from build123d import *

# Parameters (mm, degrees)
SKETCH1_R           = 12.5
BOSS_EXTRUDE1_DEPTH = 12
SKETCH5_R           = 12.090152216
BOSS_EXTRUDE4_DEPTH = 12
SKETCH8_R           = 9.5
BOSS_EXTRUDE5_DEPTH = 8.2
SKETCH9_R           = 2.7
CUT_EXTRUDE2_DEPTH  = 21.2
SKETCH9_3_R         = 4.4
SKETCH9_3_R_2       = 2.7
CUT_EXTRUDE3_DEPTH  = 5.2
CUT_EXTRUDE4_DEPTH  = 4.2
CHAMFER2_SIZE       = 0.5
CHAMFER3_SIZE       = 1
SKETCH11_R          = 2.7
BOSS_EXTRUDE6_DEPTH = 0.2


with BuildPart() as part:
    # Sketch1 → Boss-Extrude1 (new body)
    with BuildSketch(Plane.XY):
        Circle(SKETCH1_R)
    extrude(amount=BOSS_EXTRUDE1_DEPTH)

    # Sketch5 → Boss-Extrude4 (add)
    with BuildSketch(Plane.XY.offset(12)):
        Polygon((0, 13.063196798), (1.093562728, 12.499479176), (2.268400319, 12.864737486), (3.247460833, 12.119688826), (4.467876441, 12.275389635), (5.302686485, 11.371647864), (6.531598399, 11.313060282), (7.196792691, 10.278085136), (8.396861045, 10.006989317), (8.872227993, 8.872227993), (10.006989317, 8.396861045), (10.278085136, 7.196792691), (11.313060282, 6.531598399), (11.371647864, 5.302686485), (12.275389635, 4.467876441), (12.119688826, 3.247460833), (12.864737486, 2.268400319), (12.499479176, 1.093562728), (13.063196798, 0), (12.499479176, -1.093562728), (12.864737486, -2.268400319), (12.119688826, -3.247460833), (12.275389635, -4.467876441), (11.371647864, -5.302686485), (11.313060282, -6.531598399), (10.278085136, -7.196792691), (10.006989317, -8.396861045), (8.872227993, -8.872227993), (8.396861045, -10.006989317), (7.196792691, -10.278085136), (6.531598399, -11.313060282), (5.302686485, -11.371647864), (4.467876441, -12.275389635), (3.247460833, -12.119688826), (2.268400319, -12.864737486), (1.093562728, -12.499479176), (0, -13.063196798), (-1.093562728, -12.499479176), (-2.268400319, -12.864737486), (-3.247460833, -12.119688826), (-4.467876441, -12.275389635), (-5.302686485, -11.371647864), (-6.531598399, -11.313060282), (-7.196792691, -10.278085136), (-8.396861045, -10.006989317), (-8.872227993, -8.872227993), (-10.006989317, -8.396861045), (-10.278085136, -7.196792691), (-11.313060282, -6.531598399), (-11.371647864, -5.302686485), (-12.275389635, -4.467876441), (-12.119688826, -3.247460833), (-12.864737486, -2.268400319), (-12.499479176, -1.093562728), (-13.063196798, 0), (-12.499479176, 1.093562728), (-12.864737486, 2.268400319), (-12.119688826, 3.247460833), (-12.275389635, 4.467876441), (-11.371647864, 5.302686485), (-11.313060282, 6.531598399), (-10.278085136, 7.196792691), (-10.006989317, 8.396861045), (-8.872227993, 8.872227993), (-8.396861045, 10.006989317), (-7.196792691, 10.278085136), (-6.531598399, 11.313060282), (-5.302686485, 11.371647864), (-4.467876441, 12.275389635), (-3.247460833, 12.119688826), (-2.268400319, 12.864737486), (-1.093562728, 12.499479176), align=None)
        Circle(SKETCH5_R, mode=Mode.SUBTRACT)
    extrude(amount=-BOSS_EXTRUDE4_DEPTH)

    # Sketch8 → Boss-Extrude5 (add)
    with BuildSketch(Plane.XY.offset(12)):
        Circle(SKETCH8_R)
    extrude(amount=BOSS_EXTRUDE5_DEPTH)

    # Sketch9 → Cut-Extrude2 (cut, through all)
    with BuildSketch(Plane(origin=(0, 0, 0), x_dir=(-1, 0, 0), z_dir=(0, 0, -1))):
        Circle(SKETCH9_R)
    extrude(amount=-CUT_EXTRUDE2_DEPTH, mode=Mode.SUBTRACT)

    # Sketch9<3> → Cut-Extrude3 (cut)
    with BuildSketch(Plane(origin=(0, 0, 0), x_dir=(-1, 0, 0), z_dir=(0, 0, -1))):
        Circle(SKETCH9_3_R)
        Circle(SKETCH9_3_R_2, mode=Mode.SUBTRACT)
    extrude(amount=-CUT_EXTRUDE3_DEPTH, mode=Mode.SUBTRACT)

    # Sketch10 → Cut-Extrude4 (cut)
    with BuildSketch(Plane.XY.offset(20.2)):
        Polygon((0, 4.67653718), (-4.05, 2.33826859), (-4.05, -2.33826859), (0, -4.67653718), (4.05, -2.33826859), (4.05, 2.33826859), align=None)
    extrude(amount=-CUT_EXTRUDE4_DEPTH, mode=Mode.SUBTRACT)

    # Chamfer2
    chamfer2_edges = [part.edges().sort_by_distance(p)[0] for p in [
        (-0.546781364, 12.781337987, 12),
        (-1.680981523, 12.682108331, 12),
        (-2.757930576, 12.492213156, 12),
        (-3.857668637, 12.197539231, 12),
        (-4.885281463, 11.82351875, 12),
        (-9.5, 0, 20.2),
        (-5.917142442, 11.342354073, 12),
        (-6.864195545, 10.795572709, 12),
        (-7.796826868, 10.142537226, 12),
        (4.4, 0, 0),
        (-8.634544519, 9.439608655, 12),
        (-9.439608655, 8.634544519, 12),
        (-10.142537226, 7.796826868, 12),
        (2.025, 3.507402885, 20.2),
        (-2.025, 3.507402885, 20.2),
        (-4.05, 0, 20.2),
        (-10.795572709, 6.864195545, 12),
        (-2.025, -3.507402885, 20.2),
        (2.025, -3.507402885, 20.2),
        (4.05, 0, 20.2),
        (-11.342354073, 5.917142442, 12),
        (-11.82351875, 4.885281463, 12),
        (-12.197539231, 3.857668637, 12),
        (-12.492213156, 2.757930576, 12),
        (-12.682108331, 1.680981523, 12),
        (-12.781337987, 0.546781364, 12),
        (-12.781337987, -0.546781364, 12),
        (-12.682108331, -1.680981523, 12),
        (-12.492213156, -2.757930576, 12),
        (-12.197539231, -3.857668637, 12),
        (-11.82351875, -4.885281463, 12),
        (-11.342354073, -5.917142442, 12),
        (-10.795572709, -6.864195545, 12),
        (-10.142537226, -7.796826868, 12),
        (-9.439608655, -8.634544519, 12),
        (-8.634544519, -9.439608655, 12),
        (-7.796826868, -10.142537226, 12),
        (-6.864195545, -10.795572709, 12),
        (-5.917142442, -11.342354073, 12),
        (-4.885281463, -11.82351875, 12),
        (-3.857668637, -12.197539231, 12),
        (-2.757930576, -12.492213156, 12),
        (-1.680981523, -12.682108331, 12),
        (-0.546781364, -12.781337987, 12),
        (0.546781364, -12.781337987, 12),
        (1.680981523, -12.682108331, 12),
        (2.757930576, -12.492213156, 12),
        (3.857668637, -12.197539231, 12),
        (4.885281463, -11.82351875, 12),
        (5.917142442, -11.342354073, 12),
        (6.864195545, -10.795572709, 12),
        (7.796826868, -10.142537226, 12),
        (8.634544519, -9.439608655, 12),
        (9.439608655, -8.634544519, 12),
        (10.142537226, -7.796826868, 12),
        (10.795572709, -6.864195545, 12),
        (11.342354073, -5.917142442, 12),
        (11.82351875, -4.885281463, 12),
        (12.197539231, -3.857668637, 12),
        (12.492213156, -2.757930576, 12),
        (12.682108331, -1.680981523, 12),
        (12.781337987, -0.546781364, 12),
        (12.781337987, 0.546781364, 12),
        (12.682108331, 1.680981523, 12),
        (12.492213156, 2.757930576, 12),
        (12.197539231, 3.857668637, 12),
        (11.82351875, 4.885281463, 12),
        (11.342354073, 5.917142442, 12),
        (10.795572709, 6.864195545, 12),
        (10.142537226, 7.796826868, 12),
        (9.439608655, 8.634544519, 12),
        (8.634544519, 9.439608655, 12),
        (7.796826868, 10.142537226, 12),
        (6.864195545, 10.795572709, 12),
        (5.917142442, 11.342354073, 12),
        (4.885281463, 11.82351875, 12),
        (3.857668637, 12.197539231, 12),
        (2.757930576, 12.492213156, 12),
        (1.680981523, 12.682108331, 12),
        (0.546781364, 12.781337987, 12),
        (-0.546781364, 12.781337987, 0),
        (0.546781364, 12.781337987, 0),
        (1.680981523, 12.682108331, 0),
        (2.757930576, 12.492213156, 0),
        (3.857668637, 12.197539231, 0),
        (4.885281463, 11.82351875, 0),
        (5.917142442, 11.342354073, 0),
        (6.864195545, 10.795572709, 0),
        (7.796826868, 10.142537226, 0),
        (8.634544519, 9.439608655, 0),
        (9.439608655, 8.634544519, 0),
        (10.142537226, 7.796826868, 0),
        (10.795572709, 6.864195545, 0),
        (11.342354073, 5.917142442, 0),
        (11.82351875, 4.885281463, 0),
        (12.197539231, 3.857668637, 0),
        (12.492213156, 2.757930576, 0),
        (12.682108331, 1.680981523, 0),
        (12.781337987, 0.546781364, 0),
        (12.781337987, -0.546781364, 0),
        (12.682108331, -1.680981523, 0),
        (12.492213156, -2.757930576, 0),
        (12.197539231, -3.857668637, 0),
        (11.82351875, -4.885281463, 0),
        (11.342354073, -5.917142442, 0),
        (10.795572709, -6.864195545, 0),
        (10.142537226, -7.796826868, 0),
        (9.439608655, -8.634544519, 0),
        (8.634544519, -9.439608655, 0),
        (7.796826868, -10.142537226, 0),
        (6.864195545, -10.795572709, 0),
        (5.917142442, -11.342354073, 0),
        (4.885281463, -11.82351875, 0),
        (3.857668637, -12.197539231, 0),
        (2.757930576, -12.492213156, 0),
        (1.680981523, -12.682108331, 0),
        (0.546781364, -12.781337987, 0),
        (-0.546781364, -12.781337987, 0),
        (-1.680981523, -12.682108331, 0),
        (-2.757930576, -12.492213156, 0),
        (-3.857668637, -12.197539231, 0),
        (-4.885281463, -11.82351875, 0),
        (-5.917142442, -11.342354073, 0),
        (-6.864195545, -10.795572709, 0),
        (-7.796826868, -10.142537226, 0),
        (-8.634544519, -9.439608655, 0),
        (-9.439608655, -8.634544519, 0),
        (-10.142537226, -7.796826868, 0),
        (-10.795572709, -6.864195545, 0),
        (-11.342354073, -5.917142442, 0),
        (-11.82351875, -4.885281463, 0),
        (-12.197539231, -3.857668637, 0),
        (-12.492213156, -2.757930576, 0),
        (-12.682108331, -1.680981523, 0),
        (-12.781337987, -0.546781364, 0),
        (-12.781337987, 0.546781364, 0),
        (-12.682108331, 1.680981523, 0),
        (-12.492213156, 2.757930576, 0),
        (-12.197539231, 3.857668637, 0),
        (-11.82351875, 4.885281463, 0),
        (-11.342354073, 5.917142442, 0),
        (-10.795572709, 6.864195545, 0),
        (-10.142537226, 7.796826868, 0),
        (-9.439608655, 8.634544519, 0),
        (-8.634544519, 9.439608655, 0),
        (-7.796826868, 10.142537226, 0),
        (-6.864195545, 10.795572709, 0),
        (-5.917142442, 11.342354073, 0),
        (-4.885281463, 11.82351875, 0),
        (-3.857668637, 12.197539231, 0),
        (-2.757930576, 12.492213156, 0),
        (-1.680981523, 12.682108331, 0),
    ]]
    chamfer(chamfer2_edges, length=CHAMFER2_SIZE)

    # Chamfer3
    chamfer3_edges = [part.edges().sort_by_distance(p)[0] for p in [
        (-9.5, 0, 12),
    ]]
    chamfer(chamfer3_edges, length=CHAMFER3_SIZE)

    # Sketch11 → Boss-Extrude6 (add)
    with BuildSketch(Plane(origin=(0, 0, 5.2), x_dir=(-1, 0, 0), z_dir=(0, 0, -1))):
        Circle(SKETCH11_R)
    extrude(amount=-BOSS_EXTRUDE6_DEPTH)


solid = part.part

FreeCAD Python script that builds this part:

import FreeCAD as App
import Part
import Sketcher
from FreeCAD import Vector
Q = App.Units.Quantity


def edges_at(feature, points):
    """Names of the edges that pass closest to the given points."""
    edges = feature.Shape.Edges
    near = lambda p: min(range(len(edges)), key=lambda i: edges[i].distToShape(Part.Vertex(*p))[0])
    return sorted({f"Edge{near(p) + 1}" for p in points})


def add_polygon(sketch, points):
    """Adds a closed chain of lines whose ends are joined by coincident constraints."""
    first, n = sketch.GeometryCount, len(points)
    for a, b in zip(points, points[1:] + points[:1]):
        sketch.addGeometry(Part.LineSegment(App.Vector(*a, 0), App.Vector(*b, 0)), False)
    for i in range(n):
        sketch.addConstraint(Sketcher.Constraint("Coincident", first + i, 2, first + (i + 1) % n, 1))

doc = App.newDocument("Part")
body = doc.addObject("PartDesign::Body", "Body")

# Sketch on XY plane
sketch1 = body.newObject("Sketcher::SketchObject", "Sketch")
sketch1.AttachmentSupport = (doc.getObject("XY_Plane"), [""])
sketch1.MapMode = "FlatFace"
sketch1.addGeometry(Part.Circle(Vector(0, 0, 0), Vector(0, 0, 1), 12), False)
sketch1.addConstraint([
    Sketcher.Constraint("Coincident", 0, 3, -1, 1),
    Sketcher.Constraint("Diameter", 0, 25.0),
])
pad1 = body.newObject("PartDesign::Pad", "Pad")
pad1.Profile = sketch1
pad1.Length = 12

# Sketch on XY plane
sketch2 = body.newObject("Sketcher::SketchObject", "Sketch001")
sketch2.AttachmentSupport = (doc.getObject("XY_Plane"), [""])
sketch2.MapMode = "FlatFace"
sketch2.AttachmentOffset = App.Placement(Vector(0, 0, 12), App.Rotation())
add_polygon(sketch2, [(1.1, 12.5), (0, 13.1), (-1.1, 12.5), (-2.3, 12.9), (-3.2, 12.1), (-4.5, 12.3), (-5.3, 11.4), (-6.5, 11.3), (-7.2, 10.3), (-8.4, 10), (-8.9, 8.9), (-10, 8.4), (-10.3, 7.2), (-11.3, 6.5), (-11.4, 5.3), (-12.3, 4.5), (-12.1, 3.2), (-12.9, 2.3), (-12.5, 1.1), (-13.1, 0), (-12.5, -1.1), (-12.9, -2.3), (-12.1, -3.2), (-12.3, -4.5), (-11.4, -5.3), (-11.3, -6.5), (-10.3, -7.2), (-10, -8.4), (-8.9, -8.9), (-8.4, -10), (-7.2, -10.3), (-6.5, -11.3), (-5.3, -11.4), (-4.5, -12.3), (-3.2, -12.1), (-2.3, -12.9), (-1.1, -12.5), (0, -13.1), (1.1, -12.5), (2.3, -12.9), (3.2, -12.1), (4.5, -12.3), (5.3, -11.4), (6.5, -11.3), (7.2, -10.3), (8.4, -10), (8.9, -8.9), (10, -8.4), (10.3, -7.2), (11.3, -6.5), (11.4, -5.3), (12.3, -4.5), (12.1, -3.2), (12.9, -2.3), (12.5, -1.1), (13.1, 0), (12.5, 1.1), (12.9, 2.3), (12.1, 3.2), (12.3, 4.5), (11.4, 5.3), (11.3, 6.5), (10.3, 7.2), (10, 8.4), (8.9, 8.9), (8.4, 10), (7.2, 10.3), (6.5, 11.3), (5.3, 11.4), (4.5, 12.3), (3.2, 12.1), (2.3, 12.9)])  # lines 0-71
sketch2.addGeometry(Part.Circle(Vector(0, 0, 0), Vector(0, 0, 1), 12.1), False)  # 72
sketch2.addConstraint([
    Sketcher.Constraint("Coincident", 72, 3, -1, 1),
    Sketcher.Constraint("Symmetric", 0, 2, 36, 2, -1, 1),
    Sketcher.Constraint("Symmetric", 1, 2, 37, 2, -1, 1),
    Sketcher.Constraint("Symmetric", 2, 2, 38, 2, -1, 1),
    Sketcher.Constraint("Symmetric", 3, 2, 39, 2, -1, 1),
    Sketcher.Constraint("Symmetric", 4, 2, 40, 2, -1, 1),
    Sketcher.Constraint("Symmetric", 5, 2, 41, 2, -1, 1),
    Sketcher.Constraint("Symmetric", 6, 2, 42, 2, -1, 1),
    Sketcher.Constraint("Symmetric", 7, 2, 43, 2, -1, 1),
    Sketcher.Constraint("Symmetric", 8, 2, 44, 2, -1, 1),
    Sketcher.Constraint("Symmetric", 9, 2, 45, 2, -1, 1),
    Sketcher.Constraint("Symmetric", 10, 2, 46, 2, -1, 1),
    Sketcher.Constraint("Symmetric", 11, 2, 47, 2, -1, 1),
    Sketcher.Constraint("Symmetric", 12, 2, 48, 2, -1, 1),
    Sketcher.Constraint("Symmetric", 13, 2, 49, 2, -1, 1),
    Sketcher.Constraint("Symmetric", 14, 2, 50, 2, -1, 1),
    Sketcher.Constraint("Symmetric", 15, 2, 51, 2, -1, 1),
    Sketcher.Constraint("Symmetric", 16, 2, 52, 2, -1, 1),
    Sketcher.Constraint("Symmetric", 17, 2, 53, 2, -1, 1),
    Sketcher.Constraint("Symmetric", 18, 2, 54, 2, -1, 1),
    Sketcher.Constraint("Symmetric", 19, 2, 55, 2, -1, 1),
    Sketcher.Constraint("Symmetric", 20, 2, 56, 2, -1, 1),
    Sketcher.Constraint("Symmetric", 21, 2, 57, 2, -1, 1),
    Sketcher.Constraint("Symmetric", 22, 2, 58, 2, -1, 1),
    Sketcher.Constraint("Symmetric", 23, 2, 59, 2, -1, 1),
    Sketcher.Constraint("Symmetric", 24, 2, 60, 2, -1, 1),
    Sketcher.Constraint("Symmetric", 25, 2, 61, 2, -1, 1),
    Sketcher.Constraint("Symmetric", 26, 2, 62, 2, -1, 1),
    Sketcher.Constraint("Symmetric", 27, 2, 63, 2, -1, 1),
    Sketcher.Constraint("Symmetric", 28, 2, 64, 2, -1, 1),
    Sketcher.Constraint("Symmetric", 29, 2, 65, 2, -1, 1),
    Sketcher.Constraint("Symmetric", 30, 2, 66, 2, -1, 1),
    Sketcher.Constraint("Symmetric", 31, 2, 67, 2, -1, 1),
    Sketcher.Constraint("Symmetric", 32, 2, 68, 2, -1, 1),
    Sketcher.Constraint("Symmetric", 33, 2, 69, 2, -1, 1),
    Sketcher.Constraint("Symmetric", 34, 2, 70, 2, -1, 1),
    Sketcher.Constraint("Symmetric", 35, 2, 71, 2, -1, 1),
    Sketcher.Constraint("Symmetric", 35, 2, 37, 2, -2),
    Sketcher.Constraint("Symmetric", 34, 2, 38, 2, -2),
    Sketcher.Constraint("Symmetric", 33, 2, 39, 2, -2),
    Sketcher.Constraint("Symmetric", 32, 2, 40, 2, -2),
    Sketcher.Constraint("Symmetric", 31, 2, 41, 2, -2),
    Sketcher.Constraint("Symmetric", 30, 2, 42, 2, -2),
    Sketcher.Constraint("Symmetric", 29, 2, 43, 2, -2),
    Sketcher.Constraint("Symmetric", 28, 2, 44, 2, -2),
    Sketcher.Constraint("Symmetric", 27, 2, 45, 2, -2),
    Sketcher.Constraint("Symmetric", 26, 2, 46, 2, -2),
    Sketcher.Constraint("Symmetric", 25, 2, 47, 2, -2),
    Sketcher.Constraint("Symmetric", 24, 2, 48, 2, -2),
    Sketcher.Constraint("Symmetric", 23, 2, 49, 2, -2),
    Sketcher.Constraint("Symmetric", 22, 2, 50, 2, -2),
    Sketcher.Constraint("Symmetric", 21, 2, 51, 2, -2),
    Sketcher.Constraint("Symmetric", 20, 2, 52, 2, -2),
    Sketcher.Constraint("Symmetric", 19, 2, 53, 2, -2),
    Sketcher.Constraint("PointOnObject", 0, 2, -2),
    Sketcher.Constraint("PointOnObject", 18, 2, -1),
    Sketcher.Constraint("Perpendicular", 0, 18),
    Sketcher.Constraint("Perpendicular", 2, 20),
    Sketcher.Constraint("Perpendicular", 3, 21),
    Sketcher.Constraint("Perpendicular", 4, 22),
    Sketcher.Constraint("Perpendicular", 5, 23),
    Sketcher.Constraint("Perpendicular", 6, 24),
    Sketcher.Constraint("Perpendicular", 7, 25),
    Sketcher.Constraint("Perpendicular", 8, 26),
    Sketcher.Constraint("Perpendicular", 9, 27),
    Sketcher.Constraint("Equal", 1, 2),
    Sketcher.Constraint("Equal", 2, 3),
    Sketcher.Constraint("Equal", 3, 4),
    Sketcher.Constraint("Equal", 4, 5),
    Sketcher.Constraint("Equal", 5, 6),
    Sketcher.Constraint("Equal", 6, 7),
    Sketcher.Constraint("Equal", 7, 8),
    Sketcher.Constraint("Equal", 8, 9),
    Sketcher.Constraint("Equal", 9, 10),
    Sketcher.Constraint("Equal", 10, 11),
    Sketcher.Constraint("Equal", 11, 12),
    Sketcher.Constraint("Equal", 12, 13),
    Sketcher.Constraint("Equal", 13, 14),
    Sketcher.Constraint("Equal", 14, 15),
    Sketcher.Constraint("Equal", 15, 16),
    Sketcher.Constraint("Equal", 16, 17),
    Sketcher.Constraint("Equal", 17, 18),
    Sketcher.Constraint("Diameter", 72, 24.180304),
    Sketcher.Constraint("DistanceX", 2, 2, -1, 1, 2.2684),
    Sketcher.Constraint("DistanceX", 6, 2, -1, 1, 6.531598),
    Sketcher.Constraint("DistanceY", -1, 1, 1, 2, 12.499479),
    Sketcher.Constraint("DistanceX", 3, 2, -1, 1, 3.247461),
    Sketcher.Constraint("DistanceY", -1, 1, 3, 2, 12.119689),
    Sketcher.Constraint("DistanceY", -1, 1, 4, 2, 12.27539),
    Sketcher.Constraint("DistanceY", -1, 1, 6, 2, 11.31306),
    Sketcher.Constraint("DistanceX", 8, 2, -1, 1, 8.396861),
    Sketcher.Constraint("DistanceY", -1, 1, 8, 2, 10.006989),
    Sketcher.Constraint("Distance", 0, 1.230308),
])
pad2 = body.newObject("PartDesign::Pad", "Pad001")
pad2.Profile = sketch2
pad2.Length = 12
pad2.Reversed = True

# Sketch on XY plane
sketch3 = body.newObject("Sketcher::SketchObject", "Sketch002")
sketch3.AttachmentSupport = (doc.getObject("XY_Plane"), [""])
sketch3.MapMode = "FlatFace"
sketch3.AttachmentOffset = App.Placement(Vector(0, 0, 12), App.Rotation())
sketch3.addGeometry(Part.Circle(Vector(0, 0, 0), Vector(0, 0, 1), 10), False)
sketch3.addConstraint([
    Sketcher.Constraint("Coincident", 0, 3, -1, 1),
    Sketcher.Constraint("Diameter", 0, 19.0),
])
pad3 = body.newObject("PartDesign::Pad", "Pad002")
pad3.Profile = sketch3
pad3.Length = 8.2

# Sketch on XY plane
sketch4 = body.newObject("Sketcher::SketchObject", "Sketch003")
sketch4.AttachmentSupport = (doc.getObject("XY_Plane"), [""])
sketch4.MapMode = "FlatFace"
sketch4.addGeometry(Part.Circle(Vector(0, 0, 0), Vector(0, 0, 1), 2.7), False)
sketch4.addConstraint([
    Sketcher.Constraint("Coincident", 0, 3, -1, 1),
    Sketcher.Constraint("Diameter", 0, 5.4),
])
pocket1 = body.newObject("PartDesign::Pocket", "Pocket")
pocket1.Profile = sketch4
pocket1.Type = "ThroughAll"
pocket1.Reversed = True

# Sketch on XY plane
sketch5 = body.newObject("Sketcher::SketchObject", "Sketch004")
sketch5.AttachmentSupport = (doc.getObject("XY_Plane"), [""])
sketch5.MapMode = "FlatFace"
sketch5.addGeometry([
    Part.Circle(Vector(0, 0, 0), Vector(0, 0, 1), 4.4),
    Part.Circle(Vector(0, 0, 0), Vector(0, 0, 1), 2.7),
], False)
sketch5.addConstraint([
    Sketcher.Constraint("Coincident", 0, 3, -1, 1),
    Sketcher.Constraint("Coincident", 1, 3, -1, 1),
    Sketcher.Constraint("Diameter", 0, 8.8),
    Sketcher.Constraint("Diameter", 1, 5.4),
])
pocket2 = body.newObject("PartDesign::Pocket", "Pocket001")
pocket2.Profile = sketch5
pocket2.Length = 5.2
pocket2.Reversed = True

# Sketch on XY plane
sketch6 = body.newObject("Sketcher::SketchObject", "Sketch005")
sketch6.AttachmentSupport = (doc.getObject("XY_Plane"), [""])
sketch6.MapMode = "FlatFace"
sketch6.AttachmentOffset = App.Placement(Vector(0, 0, 20.2), App.Rotation())
add_polygon(sketch6, [(0, 4.7), (-4, 2.3), (-4, -2.3), (0, -4.7), (4, -2.3), (4, 2.3)])  # lines 0-5
sketch6.addConstraint([
    Sketcher.Constraint("Vertical", 1),
    Sketcher.Constraint("Vertical", 4),
    Sketcher.Constraint("Symmetric", 0, 2, 3, 2, -1, 1),
    Sketcher.Constraint("Symmetric", 2, 2, 5, 2, -1, 1),
    Sketcher.Constraint("PointOnObject", 2, 2, -2),
    Sketcher.Constraint("Parallel", 2, 5),
    Sketcher.Constraint("Horizontal", 1, 2, 3, 2),
    Sketcher.Constraint("Angle", 0, Q("-150 deg")),
    Sketcher.Constraint("DistanceX", 1, 2, 3, 2, 8.1),
    Sketcher.Constraint("DistanceY", 1, 2, 1, 1, 4.676537),
])
pocket3 = body.newObject("PartDesign::Pocket", "Pocket002")
pocket3.Profile = sketch6
pocket3.Length = 4.2
doc.recompute()

chamfer = body.newObject("PartDesign::Chamfer", "Chamfer")
chamfer.Base = (pocket3, edges_at(pocket3, [
    (-0.547, 12.781, 12),
    (-1.681, 12.682, 12),
    (-2.758, 12.492, 12),
    (-3.858, 12.198, 12),
    (-4.885, 11.824, 12),
    (-9.5, 0, 20.2),
    (-5.917, 11.342, 12),
    (-6.864, 10.796, 12),
    (-7.797, 10.143, 12),
    (4.4, 0, 0),
    (-8.635, 9.44, 12),
    (-9.44, 8.635, 12),
    (-10.143, 7.797, 12),
    (2.025, 3.507, 20.2),
    (-2.025, 3.507, 20.2),
    (-4.05, 0, 20.2),
    (-10.796, 6.864, 12),
    (-2.025, -3.507, 20.2),
    (2.025, -3.507, 20.2),
    (4.05, 0, 20.2),
    (-11.342, 5.917, 12),
    (-11.824, 4.885, 12),
    (-12.198, 3.858, 12),
    (-12.492, 2.758, 12),
    (-12.682, 1.681, 12),
    (-12.781, 0.547, 12),
    (-12.781, -0.547, 12),
    (-12.682, -1.681, 12),
    (-12.492, -2.758, 12),
    (-12.198, -3.858, 12),
    (-11.824, -4.885, 12),
    (-11.342, -5.917, 12),
    (-10.796, -6.864, 12),
    (-10.143, -7.797, 12),
    (-9.44, -8.635, 12),
    (-8.635, -9.44, 12),
    (-7.797, -10.143, 12),
    (-6.864, -10.796, 12),
    (-5.917, -11.342, 12),
    (-4.885, -11.824, 12),
    (-3.858, -12.198, 12),
    (-2.758, -12.492, 12),
    (-1.681, -12.682, 12),
    (-0.547, -12.781, 12),
    (0.547, -12.781, 12),
    (1.681, -12.682, 12),
    (2.758, -12.492, 12),
    (3.858, -12.198, 12),
    (4.885, -11.824, 12),
    (5.917, -11.342, 12),
    (6.864, -10.796, 12),
    (7.797, -10.143, 12),
    (8.635, -9.44, 12),
    (9.44, -8.635, 12),
    (10.143, -7.797, 12),
    (10.796, -6.864, 12),
    (11.342, -5.917, 12),
    (11.824, -4.885, 12),
    (12.198, -3.858, 12),
    (12.492, -2.758, 12),
    (12.682, -1.681, 12),
    (12.781, -0.547, 12),
    (12.781, 0.547, 12),
    (12.682, 1.681, 12),
    (12.492, 2.758, 12),
    (12.198, 3.858, 12),
    (11.824, 4.885, 12),
    (11.342, 5.917, 12),
    (10.796, 6.864, 12),
    (10.143, 7.797, 12),
    (9.44, 8.635, 12),
    (8.635, 9.44, 12),
    (7.797, 10.143, 12),
    (6.864, 10.796, 12),
    (5.917, 11.342, 12),
    (4.885, 11.824, 12),
    (3.858, 12.198, 12),
    (2.758, 12.492, 12),
    (1.681, 12.682, 12),
    (0.547, 12.781, 12),
    (-0.547, 12.781, 0),
    (0.547, 12.781, 0),
    (1.681, 12.682, 0),
    (2.758, 12.492, 0),
    (3.858, 12.198, 0),
    (4.885, 11.824, 0),
    (5.917, 11.342, 0),
    (6.864, 10.796, 0),
    (7.797, 10.143, 0),
    (8.635, 9.44, 0),
    (9.44, 8.635, 0),
    (10.143, 7.797, 0),
    (10.796, 6.864, 0),
    (11.342, 5.917, 0),
    (11.824, 4.885, 0),
    (12.198, 3.858, 0),
    (12.492, 2.758, 0),
    (12.682, 1.681, 0),
    (12.781, 0.547, 0),
    (12.781, -0.547, 0),
    (12.682, -1.681, 0),
    (12.492, -2.758, 0),
    (12.198, -3.858, 0),
    (11.824, -4.885, 0),
    (11.342, -5.917, 0),
    (10.796, -6.864, 0),
    (10.143, -7.797, 0),
    (9.44, -8.635, 0),
    (8.635, -9.44, 0),
    (7.797, -10.143, 0),
    (6.864, -10.796, 0),
    (5.917, -11.342, 0),
    (4.885, -11.824, 0),
    (3.858, -12.198, 0),
    (2.758, -12.492, 0),
    (1.681, -12.682, 0),
    (0.547, -12.781, 0),
    (-0.547, -12.781, 0),
    (-1.681, -12.682, 0),
    (-2.758, -12.492, 0),
    (-3.858, -12.198, 0),
    (-4.885, -11.824, 0),
    (-5.917, -11.342, 0),
    (-6.864, -10.796, 0),
    (-7.797, -10.143, 0),
    (-8.635, -9.44, 0),
    (-9.44, -8.635, 0),
    (-10.143, -7.797, 0),
    (-10.796, -6.864, 0),
    (-11.342, -5.917, 0),
    (-11.824, -4.885, 0),
    (-12.198, -3.858, 0),
    (-12.492, -2.758, 0),
    (-12.682, -1.681, 0),
    (-12.781, -0.547, 0),
    (-12.781, 0.547, 0),
    (-12.682, 1.681, 0),
    (-12.492, 2.758, 0),
    (-12.198, 3.858, 0),
    (-11.824, 4.885, 0),
    (-11.342, 5.917, 0),
    (-10.796, 6.864, 0),
    (-10.143, 7.797, 0),
    (-9.44, 8.635, 0),
    (-8.635, 9.44, 0),
    (-7.797, 10.143, 0),
    (-6.864, 10.796, 0),
    (-5.917, 11.342, 0),
    (-4.885, 11.824, 0),
    (-3.858, 12.198, 0),
    (-2.758, 12.492, 0),
    (-1.681, 12.682, 0),
]))
chamfer.Size = 0.5
doc.recompute()

chamfer2 = body.newObject("PartDesign::Chamfer", "Chamfer001")
chamfer2.Base = (chamfer, edges_at(chamfer, [(-9.5, 0, 12)]))
chamfer2.Size = 1

# Sketch on XY plane
sketch7 = body.newObject("Sketcher::SketchObject", "Sketch006")
sketch7.AttachmentSupport = (doc.getObject("XY_Plane"), [""])
sketch7.MapMode = "FlatFace"
sketch7.AttachmentOffset = App.Placement(Vector(0, 0, 5.2), App.Rotation())
sketch7.addGeometry(Part.Circle(Vector(0, 0, 0), Vector(0, 0, 1), 2.7), False)
sketch7.addConstraint([
    Sketcher.Constraint("Coincident", 0, 3, -1, 1),
    Sketcher.Constraint("Diameter", 0, 5.4),
])
pad4 = body.newObject("PartDesign::Pad", "Pad003")
pad4.Profile = sketch7
pad4.Length = 0.2

doc.recompute()
